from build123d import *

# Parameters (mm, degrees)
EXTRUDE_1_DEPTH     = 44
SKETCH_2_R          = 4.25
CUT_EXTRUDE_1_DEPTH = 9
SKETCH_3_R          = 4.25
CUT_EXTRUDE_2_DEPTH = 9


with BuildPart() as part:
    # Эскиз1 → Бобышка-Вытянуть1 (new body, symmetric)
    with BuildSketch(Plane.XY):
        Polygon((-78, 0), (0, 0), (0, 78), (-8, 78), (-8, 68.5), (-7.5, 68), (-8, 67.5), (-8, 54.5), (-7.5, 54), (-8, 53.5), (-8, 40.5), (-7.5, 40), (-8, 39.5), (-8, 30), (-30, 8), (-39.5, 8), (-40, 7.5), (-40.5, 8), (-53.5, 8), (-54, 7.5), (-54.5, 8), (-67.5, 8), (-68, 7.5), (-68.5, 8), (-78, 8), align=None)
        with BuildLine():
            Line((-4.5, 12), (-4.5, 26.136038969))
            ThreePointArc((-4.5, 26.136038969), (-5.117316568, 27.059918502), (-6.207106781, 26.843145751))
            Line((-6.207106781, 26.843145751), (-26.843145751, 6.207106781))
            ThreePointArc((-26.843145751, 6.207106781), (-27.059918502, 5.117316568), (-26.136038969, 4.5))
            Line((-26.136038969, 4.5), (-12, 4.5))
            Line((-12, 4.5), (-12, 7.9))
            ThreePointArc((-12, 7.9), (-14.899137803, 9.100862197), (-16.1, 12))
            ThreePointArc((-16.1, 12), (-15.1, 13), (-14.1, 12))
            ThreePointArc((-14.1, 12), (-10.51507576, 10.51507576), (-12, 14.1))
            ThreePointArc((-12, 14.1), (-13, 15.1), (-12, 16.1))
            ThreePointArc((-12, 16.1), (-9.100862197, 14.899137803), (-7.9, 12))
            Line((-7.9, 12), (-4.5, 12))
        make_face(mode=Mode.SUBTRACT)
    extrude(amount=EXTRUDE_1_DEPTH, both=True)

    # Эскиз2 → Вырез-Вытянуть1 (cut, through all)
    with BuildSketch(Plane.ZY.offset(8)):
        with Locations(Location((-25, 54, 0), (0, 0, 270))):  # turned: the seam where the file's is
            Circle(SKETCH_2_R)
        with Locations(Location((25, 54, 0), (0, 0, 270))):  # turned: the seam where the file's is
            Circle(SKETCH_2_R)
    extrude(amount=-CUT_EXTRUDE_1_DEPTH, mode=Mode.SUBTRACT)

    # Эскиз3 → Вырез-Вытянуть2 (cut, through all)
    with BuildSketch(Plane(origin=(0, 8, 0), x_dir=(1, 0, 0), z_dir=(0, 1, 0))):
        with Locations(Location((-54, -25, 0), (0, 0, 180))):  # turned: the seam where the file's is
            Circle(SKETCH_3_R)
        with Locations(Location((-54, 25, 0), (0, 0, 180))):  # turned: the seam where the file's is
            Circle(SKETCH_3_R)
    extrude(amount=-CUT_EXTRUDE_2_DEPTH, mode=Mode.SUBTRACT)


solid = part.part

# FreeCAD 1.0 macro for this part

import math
import FreeCAD as App
import Part
import Sketcher
Q = App.Units.Quantity

doc = App.newDocument("Part")
body = doc.addObject("PartDesign::Body", "Body")

# Sketch on XY plane
sketch1 = body.newObject("Sketcher::SketchObject", "Sketch")
sketch1.AttachmentSupport = (doc.getObject("XY_Plane"), [""])
sketch1.MapMode = "FlatFace"
sketch1.addGeometry([
    Part.LineSegment(App.Vector(-78, 0, 0), App.Vector(0, 0, 0)),  # 0
    Part.LineSegment(App.Vector(0, 0, 0), App.Vector(0, 78, 0)),  # 1
    Part.LineSegment(App.Vector(0, 78, 0), App.Vector(-8, 78, 0)),  # 2
    Part.LineSegment(App.Vector(-8, 78, 0), App.Vector(-8, 68.5, 0)),  # 3
    Part.LineSegment(App.Vector(-8, 68.5, 0), App.Vector(-7.5, 68, 0)),  # 4
    Part.LineSegment(App.Vector(-7.5, 68, 0), App.Vector(-8, 67.5, 0)),  # 5
    Part.LineSegment(App.Vector(-8, 67.5, 0), App.Vector(-8, 54.5, 0)),  # 6
    Part.LineSegment(App.Vector(-8, 54.5, 0), App.Vector(-7.5, 54, 0)),  # 7
    Part.LineSegment(App.Vector(-7.5, 54, 0), App.Vector(-8, 53.5, 0)),  # 8
    Part.LineSegment(App.Vector(-8, 53.5, 0), App.Vector(-8, 40.5, 0)),  # 9
    Part.LineSegment(App.Vector(-8, 40.5, 0), App.Vector(-7.5, 40, 0)),  # 10
    Part.LineSegment(App.Vector(-7.5, 40, 0), App.Vector(-8, 39.5, 0)),  # 11
    Part.LineSegment(App.Vector(-8, 39.5, 0), App.Vector(-8, 30, 0)),  # 12
    Part.LineSegment(App.Vector(-8, 30, 0), App.Vector(-30, 8, 0)),  # 13
    Part.LineSegment(App.Vector(-30, 8, 0), App.Vector(-39.5, 8, 0)),  # 14
    Part.LineSegment(App.Vector(-39.5, 8, 0), App.Vector(-40, 7.5, 0)),  # 15
    Part.LineSegment(App.Vector(-40, 7.5, 0), App.Vector(-40.5, 8, 0)),  # 16
    Part.LineSegment(App.Vector(-40.5, 8, 0), App.Vector(-53.5, 8, 0)),  # 17
    Part.LineSegment(App.Vector(-53.5, 8, 0), App.Vector(-54, 7.5, 0)),  # 18
    Part.LineSegment(App.Vector(-54, 7.5, 0), App.Vector(-54.5, 8, 0)),  # 19
    Part.LineSegment(App.Vector(-54.5, 8, 0), App.Vector(-67.5, 8, 0)),  # 20
    Part.LineSegment(App.Vector(-67.5, 8, 0), App.Vector(-68, 7.5, 0)),  # 21
    Part.LineSegment(App.Vector(-68, 7.5, 0), App.Vector(-68.5, 8, 0)),  # 22
    Part.LineSegment(App.Vector(-68.5, 8, 0), App.Vector(-78, 8, 0)),  # 23
    Part.LineSegment(App.Vector(-78, 8, 0), App.Vector(-78, 0, 0)),  # 24
    Part.LineSegment(App.Vector(-4.5, 26.136039, 0), App.Vector(-4.5, 12, 0)),  # 25
    Part.LineSegment(App.Vector(-4.5, 12, 0), App.Vector(-7.9, 12, 0)),  # 26
    Part.ArcOfCircle(Part.Circle(App.Vector(-12, 12, 0), App.Vector(0, 0, 1), 4.1), math.radians(0), math.radians(90)),  # 27
    Part.ArcOfCircle(Part.Circle(App.Vector(-12, 15.1, 0), App.Vector(0, 0, 1), 1), math.radians(90), math.radians(270)),  # 28
    Part.ArcOfCircle(Part.Circle(App.Vector(-12, 12, 0), App.Vector(0, 0, 1), 2.1), math.radians(180), math.radians(450)),  # 29
    Part.ArcOfCircle(Part.Circle(App.Vector(-15.1, 12, 0), App.Vector(0, 0, 1), 1), math.radians(0), math.radians(180)),  # 30
    Part.ArcOfCircle(Part.Circle(App.Vector(-12, 12, 0), App.Vector(0, 0, 1), 4.1), math.radians(180), math.radians(270)),  # 31
    Part.LineSegment(App.Vector(-12, 7.9, 0), App.Vector(-12, 4.5, 0)),  # 32
    Part.LineSegment(App.Vector(-12, 4.5, 0), App.Vector(-26.136039, 4.5, 0)),  # 33
    Part.ArcOfCircle(Part.Circle(App.Vector(-26.136039, 5.5, 0), App.Vector(0, 0, 1), 1), math.radians(135), math.radians(270)),  # 34
    Part.LineSegment(App.Vector(-26.843146, 6.207107, 0), App.Vector(-6.207107, 26.843146, 0)),  # 35
    Part.ArcOfCircle(Part.Circle(App.Vector(-5.5, 26.136039, 0), App.Vector(0, 0, 1), 1), math.radians(0), math.radians(135)),  # 36
], False)
sketch1.addConstraint([
    Sketcher.Constraint("Coincident", 0, 2, 1, 1),
    Sketcher.Constraint("Coincident", 1, 2, 2, 1),
    Sketcher.Constraint("Coincident", 2, 2, 3, 1),
    Sketcher.Constraint("Coincident", 3, 2, 4, 1),
    Sketcher.Constraint("Coincident", 4, 2, 5, 1),
    Sketcher.Constraint("Coincident", 5, 2, 6, 1),
    Sketcher.Constraint("Coincident", 6, 2, 7, 1),
    Sketcher.Constraint("Coincident", 7, 2, 8, 1),
    Sketcher.Constraint("Coincident", 8, 2, 9, 1),
    Sketcher.Constraint("Coincident", 9, 2, 10, 1),
    Sketcher.Constraint("Coincident", 10, 2, 11, 1),
    Sketcher.Constraint("Coincident", 11, 2, 12, 1),
    Sketcher.Constraint("Coincident", 12, 2, 13, 1),
    Sketcher.Constraint("Coincident", 13, 2, 14, 1),
    Sketcher.Constraint("Coincident", 14, 2, 15, 1),
    Sketcher.Constraint("Coincident", 15, 2, 16, 1),
    Sketcher.Constraint("Coincident", 16, 2, 17, 1),
    Sketcher.Constraint("Coincident", 17, 2, 18, 1),
    Sketcher.Constraint("Coincident", 18, 2, 19, 1),
    Sketcher.Constraint("Coincident", 19, 2, 20, 1),
    Sketcher.Constraint("Coincident", 20, 2, 21, 1),
    Sketcher.Constraint("Coincident", 21, 2, 22, 1),
    Sketcher.Constraint("Coincident", 22, 2, 23, 1),
    Sketcher.Constraint("Coincident", 23, 2, 24, 1),
    Sketcher.Constraint("Coincident", 24, 2, 0, 1),
    Sketcher.Constraint("Coincident", 25, 2, 26, 1),
    Sketcher.Constraint("Coincident", 26, 2, 27, 1),
    Sketcher.Constraint("Tangent", 27, 2, 28, 1),
    Sketcher.Constraint("Tangent", 28, 2, 29, 2),
    Sketcher.Constraint("Tangent", 29, 1, 30, 1),
    Sketcher.Constraint("Tangent", 30, 2, 31, 1),
    Sketcher.Constraint("Coincident", 31, 2, 32, 1),
    Sketcher.Constraint("Coincident", 32, 2, 33, 1),
    Sketcher.Constraint("Tangent", 33, 2, 34, 2),
    Sketcher.Constraint("Tangent", 34, 1, 35, 1),
    Sketcher.Constraint("Tangent", 35, 2, 36, 2),
    Sketcher.Constraint("Tangent", 36, 1, 25, 1),
    Sketcher.Constraint("Horizontal", 0),
    Sketcher.Constraint("Vertical", 1),
    Sketcher.Constraint("Horizontal", 2),
    Sketcher.Constraint("Vertical", 3),
    Sketcher.Constraint("Vertical", 6),
    Sketcher.Constraint("Vertical", 9),
    Sketcher.Constraint("Vertical", 12),
    Sketcher.Constraint("Horizontal", 14),
    Sketcher.Constraint("Horizontal", 17),
    Sketcher.Constraint("Horizontal", 20),
    Sketcher.Constraint("Horizontal", 23),
    Sketcher.Constraint("Vertical", 24),
    Sketcher.Constraint("Vertical", 25),
    Sketcher.Constraint("Horizontal", 26),
    Sketcher.Constraint("Vertical", 32),
    Sketcher.Constraint("Horizontal", 33),
    Sketcher.Constraint("Coincident", 0, 2, -1, 1),
    Sketcher.Constraint("Coincident", 29, 3, 27, 3),
    Sketcher.Constraint("Coincident", 31, 3, 27, 3),
    Sketcher.Constraint("Equal", 28, 30),
    Sketcher.Constraint("Equal", 30, 34),
    Sketcher.Constraint("Equal", 34, 36),
    Sketcher.Constraint("Perpendicular", 4, 5),
    Sketcher.Constraint("Perpendicular", 5, 7),
    Sketcher.Constraint("Perpendicular", 7, 8),
    Sketcher.Constraint("Perpendicular", 8, 10),
    Sketcher.Constraint("Perpendicular", 10, 11),
    Sketcher.Constraint("Parallel", 11, 13),
    Sketcher.Constraint("Parallel", 13, 15),
    Sketcher.Constraint("Perpendicular", 15, 16),
    Sketcher.Constraint("Perpendicular", 16, 18),
    Sketcher.Constraint("Perpendicular", 18, 19),
    Sketcher.Constraint("Perpendicular", 19, 21),
    Sketcher.Constraint("Perpendicular", 21, 22),
    Sketcher.Constraint("Perpendicular", 22, 35),
    Sketcher.Constraint("Horizontal", 29, 3, 30, 3),
    Sketcher.Constraint("Horizontal", 14, 2, 16, 2),
    Sketcher.Constraint("Horizontal", 15, 2, 18, 2),
    Sketcher.Constraint("Horizontal", 17, 2, 19, 2),
    Sketcher.Constraint("Horizontal", 18, 2, 21, 2),
    Sketcher.Constraint("Horizontal", 20, 2, 22, 2),
    Sketcher.Constraint("Horizontal", 31, 3, 25, 2),
    Sketcher.Constraint("Vertical", 27, 3, 28, 3),
    Sketcher.Constraint("Vertical", 3, 2, 5, 2),
    Sketcher.Constraint("Vertical", 4, 2, 7, 2),
    Sketcher.Constraint("Vertical", 6, 2, 8, 2),
    Sketcher.Constraint("Vertical", 7, 2, 10, 2),
    Sketcher.Constraint("Vertical", 9, 2, 11, 2),
    Sketcher.Constraint("Vertical", 28, 2, 31, 2),
    Sketcher.Constraint("Equal", 17, 20),
    Sketcher.Constraint("Equal", 14, 23),
    Sketcher.Constraint("Equal", 0, 1),
    Sketcher.Constraint("Equal", 23, 3),
    Sketcher.Constraint("Equal", 20, 6),
    Sketcher.Constraint("Equal", 6, 9),
    Sketcher.Constraint("Equal", 3, 12),
    Sketcher.Constraint("Equal", 2, 24),
    Sketcher.Constraint("Equal", 33, 25),
    Sketcher.Constraint("Equal", 26, 32),
    Sketcher.Constraint("Radius", 28, Q("1 mm")),
    Sketcher.Constraint("Radius", 27, Q("4.1 mm")),
    Sketcher.Constraint("DistanceX", 0, 1, 0, 2, Q("78 mm")),
    Sketcher.Constraint("DistanceX", 2, 2, 2, 1, Q("8 mm")),
    Sketcher.Constraint("DistanceX", 17, 2, 17, 1, Q("13 mm")),
    Sketcher.Constraint("DistanceX", 14, 2, 14, 1, Q("9.5 mm")),
    Sketcher.Constraint("DistanceX", 26, 2, 26, 1, Q("3.4 mm")),
    Sketcher.Constraint("DistanceX", 27, 3, -1, 1, Q("12 mm")),
    Sketcher.Constraint("DistanceY", -1, 1, 27, 3, Q("12 mm")),
    Sketcher.Constraint("DistanceY", -1, 1, 4, 2, Q("68 mm")),
    Sketcher.Constraint("DistanceX", 33, 2, 33, 1, Q("14.136039 mm")),
])
pad1 = body.newObject("PartDesign::Pad", "Pad")
pad1.Profile = sketch1
pad1.Length = 88
pad1.Midplane = True

# Sketch on YZ plane
sketch2 = body.newObject("Sketcher::SketchObject", "Sketch001")
sketch2.AttachmentSupport = (doc.getObject("YZ_Plane"), [""])
sketch2.MapMode = "FlatFace"
sketch2.AttachmentOffset = App.Placement(App.Vector(0, 0, -8), App.Rotation())
sketch2.addGeometry([
    Part.Circle(App.Vector(54, -25, 0), App.Vector(0, 0, 1), 4.25),
    Part.Circle(App.Vector(54, 25, 0), App.Vector(0, 0, 1), 4.25),
], False)
sketch2.addConstraint([
    Sketcher.Constraint("Equal", 0, 1),
    Sketcher.Constraint("Symmetric", 0, 3, 1, 3, -1),
    Sketcher.Constraint("Diameter", 0, Q("8.5 mm")),
    Sketcher.Constraint("DistanceX", -1, 1, 0, 3, Q("54 mm")),
    Sketcher.Constraint("DistanceY", 0, 3, -1, 1, Q("25 mm")),
])
pocket1 = body.newObject("PartDesign::Pocket", "Pocket")
pocket1.Profile = sketch2
pocket1.Type = "ThroughAll"
pocket1.Reversed = True

# Sketch on XZ plane
sketch3 = body.newObject("Sketcher::SketchObject", "Sketch002")
sketch3.AttachmentSupport = (doc.getObject("XZ_Plane"), [""])
sketch3.MapMode = "FlatFace"
sketch3.AttachmentOffset = App.Placement(App.Vector(0, 0, -8), App.Rotation())
sketch3.addGeometry([
    Part.Circle(App.Vector(-54, 25, 0), App.Vector(0, 0, 1), 4.25),
    Part.Circle(App.Vector(-54, -25, 0), App.Vector(0, 0, 1), 4.25),
], False)
sketch3.addConstraint([
    Sketcher.Constraint("Equal", 0, 1),
    Sketcher.Constraint("Symmetric", 0, 3, 1, 3, -1),
    Sketcher.Constraint("Diameter", 0, Q("8.5 mm")),
    Sketcher.Constraint("DistanceX", 0, 3, -1, 1, Q("54 mm")),
    Sketcher.Constraint("DistanceY", -1, 1, 0, 3, Q("25 mm")),
])
pocket2 = body.newObject("PartDesign::Pocket", "Pocket001")
pocket2.Profile = sketch3
pocket2.Type = "ThroughAll"
pocket2.Reversed = True

doc.recompute()
